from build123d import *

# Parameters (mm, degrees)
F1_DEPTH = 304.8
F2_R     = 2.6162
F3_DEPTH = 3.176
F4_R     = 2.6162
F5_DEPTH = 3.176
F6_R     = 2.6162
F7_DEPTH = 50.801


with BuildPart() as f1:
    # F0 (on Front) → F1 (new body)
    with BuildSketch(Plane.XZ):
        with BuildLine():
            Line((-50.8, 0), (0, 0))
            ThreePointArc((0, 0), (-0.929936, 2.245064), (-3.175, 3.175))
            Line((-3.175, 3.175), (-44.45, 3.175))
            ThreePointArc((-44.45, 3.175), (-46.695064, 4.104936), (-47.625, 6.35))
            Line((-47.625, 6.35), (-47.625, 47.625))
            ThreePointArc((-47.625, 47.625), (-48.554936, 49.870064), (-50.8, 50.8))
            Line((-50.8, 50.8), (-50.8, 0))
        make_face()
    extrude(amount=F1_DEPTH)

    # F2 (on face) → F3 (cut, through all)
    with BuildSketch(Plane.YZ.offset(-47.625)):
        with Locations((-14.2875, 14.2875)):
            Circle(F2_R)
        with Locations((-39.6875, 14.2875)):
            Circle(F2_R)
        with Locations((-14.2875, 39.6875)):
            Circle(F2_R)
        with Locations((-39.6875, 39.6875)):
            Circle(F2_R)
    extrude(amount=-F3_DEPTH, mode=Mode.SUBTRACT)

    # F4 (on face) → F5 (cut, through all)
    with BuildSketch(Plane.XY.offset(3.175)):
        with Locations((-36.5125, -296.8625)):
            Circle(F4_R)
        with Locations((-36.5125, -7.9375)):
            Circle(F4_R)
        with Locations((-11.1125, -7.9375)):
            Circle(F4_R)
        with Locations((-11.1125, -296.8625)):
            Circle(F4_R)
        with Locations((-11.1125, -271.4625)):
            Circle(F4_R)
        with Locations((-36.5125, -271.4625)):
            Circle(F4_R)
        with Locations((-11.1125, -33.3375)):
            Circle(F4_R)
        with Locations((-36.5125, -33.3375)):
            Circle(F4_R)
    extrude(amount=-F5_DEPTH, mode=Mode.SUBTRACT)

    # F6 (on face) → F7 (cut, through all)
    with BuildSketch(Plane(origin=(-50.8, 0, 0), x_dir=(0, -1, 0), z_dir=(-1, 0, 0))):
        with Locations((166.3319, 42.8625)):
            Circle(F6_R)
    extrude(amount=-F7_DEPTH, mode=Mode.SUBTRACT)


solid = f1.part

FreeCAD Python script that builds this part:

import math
import FreeCAD as App
import Part
import Sketcher
Q = App.Units.Quantity

doc = App.newDocument("Part")
body = doc.addObject("PartDesign::Body", "Body")

# Sketch on XZ plane
sketch1 = body.newObject("Sketcher::SketchObject", "Sketch")
sketch1.AttachmentSupport = (doc.getObject("XZ_Plane"), [""])
sketch1.MapMode = "FlatFace"
sketch1.addGeometry(Part.LineSegment(App.Vector(-50.8, 0, 0), App.Vector(0, 0, 0)), False)
sketch1.addGeometry(Part.ArcOfCircle(Part.Circle(App.Vector(-3.175, 0, 0), App.Vector(0, 0, 1), 3.175), math.radians(0.000002), math.radians(89.999998)), False)
sketch1.addGeometry(Part.LineSegment(App.Vector(-3.175, 3.175, 0), App.Vector(-44.45, 3.175, 0)), False)
sketch1.addGeometry(Part.ArcOfCircle(Part.Circle(App.Vector(-44.45, 6.35, 0), App.Vector(0, 0, 1), 3.175), math.radians(-179.999998), math.radians(-90.000002)), False)
sketch1.addGeometry(Part.LineSegment(App.Vector(-47.625, 6.35, 0), App.Vector(-47.625, 47.625, 0)), False)
sketch1.addGeometry(Part.ArcOfCircle(Part.Circle(App.Vector(-50.8, 47.625, 0), App.Vector(0, 0, 1), 3.175), math.radians(0.000002), math.radians(89.999998)), False)
sketch1.addGeometry(Part.LineSegment(App.Vector(-50.8, 50.8, 0), App.Vector(-50.8, 0, 0)), False)
sketch1.addConstraint(Sketcher.Constraint("Coincident", 0, 2, 1, 1))
sketch1.addConstraint(Sketcher.Constraint("Tangent", 1, 2, 2, 1))
sketch1.addConstraint(Sketcher.Constraint("Tangent", 2, 2, 3, 2))
sketch1.addConstraint(Sketcher.Constraint("Tangent", 3, 1, 4, 1))
sketch1.addConstraint(Sketcher.Constraint("Tangent", 4, 2, 5, 1))
sketch1.addConstraint(Sketcher.Constraint("Coincident", 5, 2, 6, 1))
sketch1.addConstraint(Sketcher.Constraint("Coincident", 6, 2, 0, 1))
sketch1.addConstraint(Sketcher.Constraint("Horizontal", 0))
sketch1.addConstraint(Sketcher.Constraint("Horizontal", 2))
sketch1.addConstraint(Sketcher.Constraint("Vertical", 4))
sketch1.addConstraint(Sketcher.Constraint("Vertical", 6))
sketch1.addConstraint(Sketcher.Constraint("Coincident", 0, 2, -1, 1))
sketch1.addConstraint(Sketcher.Constraint("Equal", 1, 3))
sketch1.addConstraint(Sketcher.Constraint("Equal", 3, 5))
sketch1.addConstraint(Sketcher.Constraint("PointOnObject", 1, 3, -1))
sketch1.addConstraint(Sketcher.Constraint("Equal", 2, 4))
sketch1.addConstraint(Sketcher.Constraint("Equal", 0, 6))
sketch1.addConstraint(Sketcher.Constraint("DistanceX", 0, 1, 0, 2, Q("2 in")))
sketch1.addConstraint(Sketcher.Constraint("Radius", 1, Q("0.125 in")))
pad1 = body.newObject("PartDesign::Pad", "Pad")
pad1.Profile = sketch1
pad1.Length = Q("12 in")

# Sketch on YZ plane
sketch2 = body.newObject("Sketcher::SketchObject", "Sketch001")
sketch2.AttachmentSupport = (doc.getObject("YZ_Plane"), [""])
sketch2.MapMode = "FlatFace"
sketch2.AttachmentOffset = App.Placement(App.Vector(0, 0, -1.875 * 25.4), App.Rotation())
sketch2.addGeometry(Part.Circle(App.Vector(-14.2875, 14.2875, 0), App.Vector(0, 0, 1), 2.6162), False)
sketch2.addGeometry(Part.Circle(App.Vector(-39.6875, 14.2875, 0), App.Vector(0, 0, 1), 2.6162), False)
sketch2.addGeometry(Part.Circle(App.Vector(-14.2875, 39.6875, 0), App.Vector(0, 0, 1), 2.6162), False)
sketch2.addGeometry(Part.Circle(App.Vector(-39.6875, 39.6875, 0), App.Vector(0, 0, 1), 2.6162), False)
sketch2.addConstraint(Sketcher.Constraint("Equal", 0, 1))
sketch2.addConstraint(Sketcher.Constraint("Equal", 1, 2))
sketch2.addConstraint(Sketcher.Constraint("Equal", 2, 3))
sketch2.addConstraint(Sketcher.Constraint("Horizontal", 0, 3, 1, 3))
sketch2.addConstraint(Sketcher.Constraint("Horizontal", 2, 3, 3, 3))
sketch2.addConstraint(Sketcher.Constraint("Vertical", 0, 3, 2, 3))
sketch2.addConstraint(Sketcher.Constraint("Vertical", 1, 3, 3, 3))
sketch2.addConstraint(Sketcher.Constraint("Diameter", 0, Q("0.206 in")))
sketch2.addConstraint(Sketcher.Constraint("DistanceX", 1, 3, 0, 3, Q("1 in")))
sketch2.addConstraint(Sketcher.Constraint("DistanceY", 0, 3, 2, 3, Q("1 in")))
sketch2.addConstraint(Sketcher.Constraint("DistanceX", 0, 3, -1, 1, Q("0.5625 in")))
sketch2.addConstraint(Sketcher.Constraint("DistanceY", -1, 1, 0, 3, Q("0.5625 in")))
pocket1 = body.newObject("PartDesign::Pocket", "Pocket")
pocket1.Profile = sketch2
pocket1.Type = "ThroughAll"

# Sketch on XY plane
sketch3 = body.newObject("Sketcher::SketchObject", "Sketch002")
sketch3.AttachmentSupport = (doc.getObject("XY_Plane"), [""])
sketch3.MapMode = "FlatFace"
sketch3.AttachmentOffset = App.Placement(App.Vector(0, 0, 0.125 * 25.4), App.Rotation())
sketch3.addGeometry(Part.Circle(App.Vector(-36.5125, -296.8625, 0), App.Vector(0, 0, 1), 2.6162), False)
sketch3.addGeometry(Part.Circle(App.Vector(-36.5125, -7.9375, 0), App.Vector(0, 0, 1), 2.6162), False)
sketch3.addGeometry(Part.Circle(App.Vector(-11.1125, -7.9375, 0), App.Vector(0, 0, 1), 2.6162), False)
sketch3.addGeometry(Part.Circle(App.Vector(-11.1125, -296.8625, 0), App.Vector(0, 0, 1), 2.6162), False)
sketch3.addGeometry(Part.Circle(App.Vector(-11.1125, -271.4625, 0), App.Vector(0, 0, 1), 2.6162), False)
sketch3.addGeometry(Part.Circle(App.Vector(-36.5125, -271.4625, 0), App.Vector(0, 0, 1), 2.6162), False)
sketch3.addGeometry(Part.Circle(App.Vector(-11.1125, -33.3375, 0), App.Vector(0, 0, 1), 2.6162), False)
sketch3.addGeometry(Part.Circle(App.Vector(-36.5125, -33.3375, 0), App.Vector(0, 0, 1), 2.6162), False)
sketch3.addConstraint(Sketcher.Constraint("Equal", 0, 1))
sketch3.addConstraint(Sketcher.Constraint("Equal", 1, 2))
sketch3.addConstraint(Sketcher.Constraint("Equal", 2, 3))
sketch3.addConstraint(Sketcher.Constraint("Equal", 3, 4))
sketch3.addConstraint(Sketcher.Constraint("Equal", 4, 5))
sketch3.addConstraint(Sketcher.Constraint("Equal", 5, 6))
sketch3.addConstraint(Sketcher.Constraint("Equal", 6, 7))
sketch3.addConstraint(Sketcher.Constraint("Horizontal", 1, 3, 2, 3))
sketch3.addConstraint(Sketcher.Constraint("Horizontal", 0, 3, 3, 3))
sketch3.addConstraint(Sketcher.Constraint("Horizontal", 4, 3, 5, 3))
sketch3.addConstraint(Sketcher.Constraint("Horizontal", 6, 3, 7, 3))
sketch3.addConstraint(Sketcher.Constraint("Vertical", 0, 3, 1, 3))
sketch3.addConstraint(Sketcher.Constraint("Vertical", 2, 3, 3, 3))
sketch3.addConstraint(Sketcher.Constraint("Vertical", 3, 3, 4, 3))
sketch3.addConstraint(Sketcher.Constraint("Vertical", 1, 3, 5, 3))
sketch3.addConstraint(Sketcher.Constraint("Vertical", 4, 3, 6, 3))
sketch3.addConstraint(Sketcher.Constraint("Vertical", 5, 3, 7, 3))
sketch3.addConstraint(Sketcher.Constraint("Diameter", 0, Q("0.206 in")))
sketch3.addConstraint(Sketcher.Constraint("DistanceX", 1, 3, 2, 3, Q("1 in")))
sketch3.addConstraint(Sketcher.Constraint("DistanceY", 3, 3, 4, 3, Q("1 in")))
sketch3.addConstraint(Sketcher.Constraint("DistanceY", 6, 3, 2, 3, Q("1 in")))
sketch3.addConstraint(Sketcher.Constraint("DistanceX", 0, 3, -1, 1, Q("1.4375 in")))
sketch3.addConstraint(Sketcher.Constraint("DistanceY", 0, 3, -1, 1, Q("11.6875 in")))
sketch3.addConstraint(Sketcher.Constraint("DistanceY", 1, 3, -1, 1, Q("0.3125 in")))
pocket2 = body.newObject("PartDesign::Pocket", "Pocket001")
pocket2.Profile = sketch3
pocket2.Type = "ThroughAll"

# Sketch on YZ plane
sketch4 = body.newObject("Sketcher::SketchObject", "Sketch003")
sketch4.AttachmentSupport = (doc.getObject("YZ_Plane"), [""])
sketch4.MapMode = "FlatFace"
sketch4.AttachmentOffset = App.Placement(App.Vector(0, 0, -2 * 25.4), App.Rotation())
sketch4.addGeometry(Part.Circle(App.Vector(-166.3319, 42.8625, 0), App.Vector(0, 0, 1), 2.6162), False)
sketch4.addConstraint(Sketcher.Constraint("Diameter", 0, Q("0.206 in")))
sketch4.addConstraint(Sketcher.Constraint("DistanceY", -1, 1, 0, 3, Q("1.6875 in")))
sketch4.addConstraint(Sketcher.Constraint("DistanceX", 0, 3, -1, 1, Q("6.5485 in")))
pocket3 = body.newObject("PartDesign::Pocket", "Pocket002")
pocket3.Profile = sketch4
pocket3.Type = "ThroughAll"
pocket3.Reversed = True

doc.recompute()
